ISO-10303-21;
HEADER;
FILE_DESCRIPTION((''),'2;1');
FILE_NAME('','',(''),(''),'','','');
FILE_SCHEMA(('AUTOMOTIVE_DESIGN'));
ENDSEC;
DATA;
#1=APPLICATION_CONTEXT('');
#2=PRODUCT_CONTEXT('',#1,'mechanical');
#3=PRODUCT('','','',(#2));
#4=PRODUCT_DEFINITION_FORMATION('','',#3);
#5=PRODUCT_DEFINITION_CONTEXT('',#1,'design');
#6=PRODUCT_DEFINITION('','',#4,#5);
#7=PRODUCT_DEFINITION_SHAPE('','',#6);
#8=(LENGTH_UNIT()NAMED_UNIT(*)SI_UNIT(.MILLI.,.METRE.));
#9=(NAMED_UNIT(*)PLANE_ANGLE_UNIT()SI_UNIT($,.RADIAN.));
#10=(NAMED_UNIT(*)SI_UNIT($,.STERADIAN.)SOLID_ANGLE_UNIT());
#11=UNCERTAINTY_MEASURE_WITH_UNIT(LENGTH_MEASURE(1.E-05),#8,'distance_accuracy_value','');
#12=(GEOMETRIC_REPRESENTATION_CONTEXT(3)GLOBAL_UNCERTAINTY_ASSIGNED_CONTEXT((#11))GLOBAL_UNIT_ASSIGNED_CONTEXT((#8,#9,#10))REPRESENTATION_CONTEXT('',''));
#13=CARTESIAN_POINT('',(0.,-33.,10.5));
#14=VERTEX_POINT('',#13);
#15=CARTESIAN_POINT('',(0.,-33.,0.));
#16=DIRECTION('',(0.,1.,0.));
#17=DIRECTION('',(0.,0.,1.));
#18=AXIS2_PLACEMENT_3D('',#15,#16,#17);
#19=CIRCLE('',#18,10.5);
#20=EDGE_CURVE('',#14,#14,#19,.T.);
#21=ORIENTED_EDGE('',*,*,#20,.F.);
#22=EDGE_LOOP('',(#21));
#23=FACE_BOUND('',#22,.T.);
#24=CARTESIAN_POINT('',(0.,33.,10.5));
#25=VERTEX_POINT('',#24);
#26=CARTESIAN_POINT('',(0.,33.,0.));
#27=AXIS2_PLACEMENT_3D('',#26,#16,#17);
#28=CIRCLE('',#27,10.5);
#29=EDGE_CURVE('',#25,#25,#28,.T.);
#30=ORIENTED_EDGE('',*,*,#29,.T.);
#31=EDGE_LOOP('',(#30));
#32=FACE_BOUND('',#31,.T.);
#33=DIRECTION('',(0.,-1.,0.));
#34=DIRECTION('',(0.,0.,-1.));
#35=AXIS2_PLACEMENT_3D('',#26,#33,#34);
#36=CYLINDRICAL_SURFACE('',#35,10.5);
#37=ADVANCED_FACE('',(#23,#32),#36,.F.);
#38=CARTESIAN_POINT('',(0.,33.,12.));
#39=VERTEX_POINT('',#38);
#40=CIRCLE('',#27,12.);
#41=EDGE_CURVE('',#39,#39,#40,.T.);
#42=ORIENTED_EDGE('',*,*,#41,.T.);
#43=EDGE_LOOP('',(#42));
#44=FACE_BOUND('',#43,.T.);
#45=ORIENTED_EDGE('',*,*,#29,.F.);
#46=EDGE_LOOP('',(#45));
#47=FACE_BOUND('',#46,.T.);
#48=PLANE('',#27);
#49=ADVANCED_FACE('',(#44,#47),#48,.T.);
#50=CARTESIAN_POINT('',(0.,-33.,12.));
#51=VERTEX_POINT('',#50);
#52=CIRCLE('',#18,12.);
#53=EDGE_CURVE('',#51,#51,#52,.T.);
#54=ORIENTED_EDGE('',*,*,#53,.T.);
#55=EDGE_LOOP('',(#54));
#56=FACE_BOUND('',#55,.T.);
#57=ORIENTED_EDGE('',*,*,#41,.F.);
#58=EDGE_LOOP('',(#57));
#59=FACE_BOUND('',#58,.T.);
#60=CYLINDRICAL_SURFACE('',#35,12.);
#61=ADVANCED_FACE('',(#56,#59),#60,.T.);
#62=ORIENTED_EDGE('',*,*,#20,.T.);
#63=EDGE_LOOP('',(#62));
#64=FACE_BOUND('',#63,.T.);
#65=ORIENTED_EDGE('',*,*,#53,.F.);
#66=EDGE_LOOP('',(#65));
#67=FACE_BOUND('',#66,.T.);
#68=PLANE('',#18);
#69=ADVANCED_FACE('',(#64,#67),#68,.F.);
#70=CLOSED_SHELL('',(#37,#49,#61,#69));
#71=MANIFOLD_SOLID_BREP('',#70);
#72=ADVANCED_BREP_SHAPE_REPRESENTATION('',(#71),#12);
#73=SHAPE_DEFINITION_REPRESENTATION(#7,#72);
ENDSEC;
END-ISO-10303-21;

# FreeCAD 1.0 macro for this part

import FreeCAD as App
import Part
import Sketcher
from FreeCAD import Vector
Q = App.Units.Quantity

doc = App.newDocument("Part")
body = doc.addObject("PartDesign::Body", "Body")

sketch1 = body.newObject("Sketcher::SketchObject", "Sketch")
sketch1.AttachmentSupport = (doc.getObject("XZ_Plane"), [""])
sketch1.MapMode = "FlatFace"
sketch1.addGeometry([
    Part.Circle(Vector(0, 0, 0), Vector(0, 0, 1), 12),
    Part.Circle(Vector(0, 0, 0), Vector(0, 0, 1), 10),
], False)
sketch1.addConstraint([
    Sketcher.Constraint("Coincident", 0, 3, -1, 1),
    Sketcher.Constraint("Coincident", 1, 3, -1, 1),
    Sketcher.Constraint("Diameter", 0, Q("24 mm")),
    Sketcher.Constraint("Diameter", 1, Q("21 mm")),
])
pad1 = body.newObject("PartDesign::Pad", "Pad")
pad1.Profile = sketch1
pad1.Length = 66
pad1.Midplane = True

doc.recompute()
